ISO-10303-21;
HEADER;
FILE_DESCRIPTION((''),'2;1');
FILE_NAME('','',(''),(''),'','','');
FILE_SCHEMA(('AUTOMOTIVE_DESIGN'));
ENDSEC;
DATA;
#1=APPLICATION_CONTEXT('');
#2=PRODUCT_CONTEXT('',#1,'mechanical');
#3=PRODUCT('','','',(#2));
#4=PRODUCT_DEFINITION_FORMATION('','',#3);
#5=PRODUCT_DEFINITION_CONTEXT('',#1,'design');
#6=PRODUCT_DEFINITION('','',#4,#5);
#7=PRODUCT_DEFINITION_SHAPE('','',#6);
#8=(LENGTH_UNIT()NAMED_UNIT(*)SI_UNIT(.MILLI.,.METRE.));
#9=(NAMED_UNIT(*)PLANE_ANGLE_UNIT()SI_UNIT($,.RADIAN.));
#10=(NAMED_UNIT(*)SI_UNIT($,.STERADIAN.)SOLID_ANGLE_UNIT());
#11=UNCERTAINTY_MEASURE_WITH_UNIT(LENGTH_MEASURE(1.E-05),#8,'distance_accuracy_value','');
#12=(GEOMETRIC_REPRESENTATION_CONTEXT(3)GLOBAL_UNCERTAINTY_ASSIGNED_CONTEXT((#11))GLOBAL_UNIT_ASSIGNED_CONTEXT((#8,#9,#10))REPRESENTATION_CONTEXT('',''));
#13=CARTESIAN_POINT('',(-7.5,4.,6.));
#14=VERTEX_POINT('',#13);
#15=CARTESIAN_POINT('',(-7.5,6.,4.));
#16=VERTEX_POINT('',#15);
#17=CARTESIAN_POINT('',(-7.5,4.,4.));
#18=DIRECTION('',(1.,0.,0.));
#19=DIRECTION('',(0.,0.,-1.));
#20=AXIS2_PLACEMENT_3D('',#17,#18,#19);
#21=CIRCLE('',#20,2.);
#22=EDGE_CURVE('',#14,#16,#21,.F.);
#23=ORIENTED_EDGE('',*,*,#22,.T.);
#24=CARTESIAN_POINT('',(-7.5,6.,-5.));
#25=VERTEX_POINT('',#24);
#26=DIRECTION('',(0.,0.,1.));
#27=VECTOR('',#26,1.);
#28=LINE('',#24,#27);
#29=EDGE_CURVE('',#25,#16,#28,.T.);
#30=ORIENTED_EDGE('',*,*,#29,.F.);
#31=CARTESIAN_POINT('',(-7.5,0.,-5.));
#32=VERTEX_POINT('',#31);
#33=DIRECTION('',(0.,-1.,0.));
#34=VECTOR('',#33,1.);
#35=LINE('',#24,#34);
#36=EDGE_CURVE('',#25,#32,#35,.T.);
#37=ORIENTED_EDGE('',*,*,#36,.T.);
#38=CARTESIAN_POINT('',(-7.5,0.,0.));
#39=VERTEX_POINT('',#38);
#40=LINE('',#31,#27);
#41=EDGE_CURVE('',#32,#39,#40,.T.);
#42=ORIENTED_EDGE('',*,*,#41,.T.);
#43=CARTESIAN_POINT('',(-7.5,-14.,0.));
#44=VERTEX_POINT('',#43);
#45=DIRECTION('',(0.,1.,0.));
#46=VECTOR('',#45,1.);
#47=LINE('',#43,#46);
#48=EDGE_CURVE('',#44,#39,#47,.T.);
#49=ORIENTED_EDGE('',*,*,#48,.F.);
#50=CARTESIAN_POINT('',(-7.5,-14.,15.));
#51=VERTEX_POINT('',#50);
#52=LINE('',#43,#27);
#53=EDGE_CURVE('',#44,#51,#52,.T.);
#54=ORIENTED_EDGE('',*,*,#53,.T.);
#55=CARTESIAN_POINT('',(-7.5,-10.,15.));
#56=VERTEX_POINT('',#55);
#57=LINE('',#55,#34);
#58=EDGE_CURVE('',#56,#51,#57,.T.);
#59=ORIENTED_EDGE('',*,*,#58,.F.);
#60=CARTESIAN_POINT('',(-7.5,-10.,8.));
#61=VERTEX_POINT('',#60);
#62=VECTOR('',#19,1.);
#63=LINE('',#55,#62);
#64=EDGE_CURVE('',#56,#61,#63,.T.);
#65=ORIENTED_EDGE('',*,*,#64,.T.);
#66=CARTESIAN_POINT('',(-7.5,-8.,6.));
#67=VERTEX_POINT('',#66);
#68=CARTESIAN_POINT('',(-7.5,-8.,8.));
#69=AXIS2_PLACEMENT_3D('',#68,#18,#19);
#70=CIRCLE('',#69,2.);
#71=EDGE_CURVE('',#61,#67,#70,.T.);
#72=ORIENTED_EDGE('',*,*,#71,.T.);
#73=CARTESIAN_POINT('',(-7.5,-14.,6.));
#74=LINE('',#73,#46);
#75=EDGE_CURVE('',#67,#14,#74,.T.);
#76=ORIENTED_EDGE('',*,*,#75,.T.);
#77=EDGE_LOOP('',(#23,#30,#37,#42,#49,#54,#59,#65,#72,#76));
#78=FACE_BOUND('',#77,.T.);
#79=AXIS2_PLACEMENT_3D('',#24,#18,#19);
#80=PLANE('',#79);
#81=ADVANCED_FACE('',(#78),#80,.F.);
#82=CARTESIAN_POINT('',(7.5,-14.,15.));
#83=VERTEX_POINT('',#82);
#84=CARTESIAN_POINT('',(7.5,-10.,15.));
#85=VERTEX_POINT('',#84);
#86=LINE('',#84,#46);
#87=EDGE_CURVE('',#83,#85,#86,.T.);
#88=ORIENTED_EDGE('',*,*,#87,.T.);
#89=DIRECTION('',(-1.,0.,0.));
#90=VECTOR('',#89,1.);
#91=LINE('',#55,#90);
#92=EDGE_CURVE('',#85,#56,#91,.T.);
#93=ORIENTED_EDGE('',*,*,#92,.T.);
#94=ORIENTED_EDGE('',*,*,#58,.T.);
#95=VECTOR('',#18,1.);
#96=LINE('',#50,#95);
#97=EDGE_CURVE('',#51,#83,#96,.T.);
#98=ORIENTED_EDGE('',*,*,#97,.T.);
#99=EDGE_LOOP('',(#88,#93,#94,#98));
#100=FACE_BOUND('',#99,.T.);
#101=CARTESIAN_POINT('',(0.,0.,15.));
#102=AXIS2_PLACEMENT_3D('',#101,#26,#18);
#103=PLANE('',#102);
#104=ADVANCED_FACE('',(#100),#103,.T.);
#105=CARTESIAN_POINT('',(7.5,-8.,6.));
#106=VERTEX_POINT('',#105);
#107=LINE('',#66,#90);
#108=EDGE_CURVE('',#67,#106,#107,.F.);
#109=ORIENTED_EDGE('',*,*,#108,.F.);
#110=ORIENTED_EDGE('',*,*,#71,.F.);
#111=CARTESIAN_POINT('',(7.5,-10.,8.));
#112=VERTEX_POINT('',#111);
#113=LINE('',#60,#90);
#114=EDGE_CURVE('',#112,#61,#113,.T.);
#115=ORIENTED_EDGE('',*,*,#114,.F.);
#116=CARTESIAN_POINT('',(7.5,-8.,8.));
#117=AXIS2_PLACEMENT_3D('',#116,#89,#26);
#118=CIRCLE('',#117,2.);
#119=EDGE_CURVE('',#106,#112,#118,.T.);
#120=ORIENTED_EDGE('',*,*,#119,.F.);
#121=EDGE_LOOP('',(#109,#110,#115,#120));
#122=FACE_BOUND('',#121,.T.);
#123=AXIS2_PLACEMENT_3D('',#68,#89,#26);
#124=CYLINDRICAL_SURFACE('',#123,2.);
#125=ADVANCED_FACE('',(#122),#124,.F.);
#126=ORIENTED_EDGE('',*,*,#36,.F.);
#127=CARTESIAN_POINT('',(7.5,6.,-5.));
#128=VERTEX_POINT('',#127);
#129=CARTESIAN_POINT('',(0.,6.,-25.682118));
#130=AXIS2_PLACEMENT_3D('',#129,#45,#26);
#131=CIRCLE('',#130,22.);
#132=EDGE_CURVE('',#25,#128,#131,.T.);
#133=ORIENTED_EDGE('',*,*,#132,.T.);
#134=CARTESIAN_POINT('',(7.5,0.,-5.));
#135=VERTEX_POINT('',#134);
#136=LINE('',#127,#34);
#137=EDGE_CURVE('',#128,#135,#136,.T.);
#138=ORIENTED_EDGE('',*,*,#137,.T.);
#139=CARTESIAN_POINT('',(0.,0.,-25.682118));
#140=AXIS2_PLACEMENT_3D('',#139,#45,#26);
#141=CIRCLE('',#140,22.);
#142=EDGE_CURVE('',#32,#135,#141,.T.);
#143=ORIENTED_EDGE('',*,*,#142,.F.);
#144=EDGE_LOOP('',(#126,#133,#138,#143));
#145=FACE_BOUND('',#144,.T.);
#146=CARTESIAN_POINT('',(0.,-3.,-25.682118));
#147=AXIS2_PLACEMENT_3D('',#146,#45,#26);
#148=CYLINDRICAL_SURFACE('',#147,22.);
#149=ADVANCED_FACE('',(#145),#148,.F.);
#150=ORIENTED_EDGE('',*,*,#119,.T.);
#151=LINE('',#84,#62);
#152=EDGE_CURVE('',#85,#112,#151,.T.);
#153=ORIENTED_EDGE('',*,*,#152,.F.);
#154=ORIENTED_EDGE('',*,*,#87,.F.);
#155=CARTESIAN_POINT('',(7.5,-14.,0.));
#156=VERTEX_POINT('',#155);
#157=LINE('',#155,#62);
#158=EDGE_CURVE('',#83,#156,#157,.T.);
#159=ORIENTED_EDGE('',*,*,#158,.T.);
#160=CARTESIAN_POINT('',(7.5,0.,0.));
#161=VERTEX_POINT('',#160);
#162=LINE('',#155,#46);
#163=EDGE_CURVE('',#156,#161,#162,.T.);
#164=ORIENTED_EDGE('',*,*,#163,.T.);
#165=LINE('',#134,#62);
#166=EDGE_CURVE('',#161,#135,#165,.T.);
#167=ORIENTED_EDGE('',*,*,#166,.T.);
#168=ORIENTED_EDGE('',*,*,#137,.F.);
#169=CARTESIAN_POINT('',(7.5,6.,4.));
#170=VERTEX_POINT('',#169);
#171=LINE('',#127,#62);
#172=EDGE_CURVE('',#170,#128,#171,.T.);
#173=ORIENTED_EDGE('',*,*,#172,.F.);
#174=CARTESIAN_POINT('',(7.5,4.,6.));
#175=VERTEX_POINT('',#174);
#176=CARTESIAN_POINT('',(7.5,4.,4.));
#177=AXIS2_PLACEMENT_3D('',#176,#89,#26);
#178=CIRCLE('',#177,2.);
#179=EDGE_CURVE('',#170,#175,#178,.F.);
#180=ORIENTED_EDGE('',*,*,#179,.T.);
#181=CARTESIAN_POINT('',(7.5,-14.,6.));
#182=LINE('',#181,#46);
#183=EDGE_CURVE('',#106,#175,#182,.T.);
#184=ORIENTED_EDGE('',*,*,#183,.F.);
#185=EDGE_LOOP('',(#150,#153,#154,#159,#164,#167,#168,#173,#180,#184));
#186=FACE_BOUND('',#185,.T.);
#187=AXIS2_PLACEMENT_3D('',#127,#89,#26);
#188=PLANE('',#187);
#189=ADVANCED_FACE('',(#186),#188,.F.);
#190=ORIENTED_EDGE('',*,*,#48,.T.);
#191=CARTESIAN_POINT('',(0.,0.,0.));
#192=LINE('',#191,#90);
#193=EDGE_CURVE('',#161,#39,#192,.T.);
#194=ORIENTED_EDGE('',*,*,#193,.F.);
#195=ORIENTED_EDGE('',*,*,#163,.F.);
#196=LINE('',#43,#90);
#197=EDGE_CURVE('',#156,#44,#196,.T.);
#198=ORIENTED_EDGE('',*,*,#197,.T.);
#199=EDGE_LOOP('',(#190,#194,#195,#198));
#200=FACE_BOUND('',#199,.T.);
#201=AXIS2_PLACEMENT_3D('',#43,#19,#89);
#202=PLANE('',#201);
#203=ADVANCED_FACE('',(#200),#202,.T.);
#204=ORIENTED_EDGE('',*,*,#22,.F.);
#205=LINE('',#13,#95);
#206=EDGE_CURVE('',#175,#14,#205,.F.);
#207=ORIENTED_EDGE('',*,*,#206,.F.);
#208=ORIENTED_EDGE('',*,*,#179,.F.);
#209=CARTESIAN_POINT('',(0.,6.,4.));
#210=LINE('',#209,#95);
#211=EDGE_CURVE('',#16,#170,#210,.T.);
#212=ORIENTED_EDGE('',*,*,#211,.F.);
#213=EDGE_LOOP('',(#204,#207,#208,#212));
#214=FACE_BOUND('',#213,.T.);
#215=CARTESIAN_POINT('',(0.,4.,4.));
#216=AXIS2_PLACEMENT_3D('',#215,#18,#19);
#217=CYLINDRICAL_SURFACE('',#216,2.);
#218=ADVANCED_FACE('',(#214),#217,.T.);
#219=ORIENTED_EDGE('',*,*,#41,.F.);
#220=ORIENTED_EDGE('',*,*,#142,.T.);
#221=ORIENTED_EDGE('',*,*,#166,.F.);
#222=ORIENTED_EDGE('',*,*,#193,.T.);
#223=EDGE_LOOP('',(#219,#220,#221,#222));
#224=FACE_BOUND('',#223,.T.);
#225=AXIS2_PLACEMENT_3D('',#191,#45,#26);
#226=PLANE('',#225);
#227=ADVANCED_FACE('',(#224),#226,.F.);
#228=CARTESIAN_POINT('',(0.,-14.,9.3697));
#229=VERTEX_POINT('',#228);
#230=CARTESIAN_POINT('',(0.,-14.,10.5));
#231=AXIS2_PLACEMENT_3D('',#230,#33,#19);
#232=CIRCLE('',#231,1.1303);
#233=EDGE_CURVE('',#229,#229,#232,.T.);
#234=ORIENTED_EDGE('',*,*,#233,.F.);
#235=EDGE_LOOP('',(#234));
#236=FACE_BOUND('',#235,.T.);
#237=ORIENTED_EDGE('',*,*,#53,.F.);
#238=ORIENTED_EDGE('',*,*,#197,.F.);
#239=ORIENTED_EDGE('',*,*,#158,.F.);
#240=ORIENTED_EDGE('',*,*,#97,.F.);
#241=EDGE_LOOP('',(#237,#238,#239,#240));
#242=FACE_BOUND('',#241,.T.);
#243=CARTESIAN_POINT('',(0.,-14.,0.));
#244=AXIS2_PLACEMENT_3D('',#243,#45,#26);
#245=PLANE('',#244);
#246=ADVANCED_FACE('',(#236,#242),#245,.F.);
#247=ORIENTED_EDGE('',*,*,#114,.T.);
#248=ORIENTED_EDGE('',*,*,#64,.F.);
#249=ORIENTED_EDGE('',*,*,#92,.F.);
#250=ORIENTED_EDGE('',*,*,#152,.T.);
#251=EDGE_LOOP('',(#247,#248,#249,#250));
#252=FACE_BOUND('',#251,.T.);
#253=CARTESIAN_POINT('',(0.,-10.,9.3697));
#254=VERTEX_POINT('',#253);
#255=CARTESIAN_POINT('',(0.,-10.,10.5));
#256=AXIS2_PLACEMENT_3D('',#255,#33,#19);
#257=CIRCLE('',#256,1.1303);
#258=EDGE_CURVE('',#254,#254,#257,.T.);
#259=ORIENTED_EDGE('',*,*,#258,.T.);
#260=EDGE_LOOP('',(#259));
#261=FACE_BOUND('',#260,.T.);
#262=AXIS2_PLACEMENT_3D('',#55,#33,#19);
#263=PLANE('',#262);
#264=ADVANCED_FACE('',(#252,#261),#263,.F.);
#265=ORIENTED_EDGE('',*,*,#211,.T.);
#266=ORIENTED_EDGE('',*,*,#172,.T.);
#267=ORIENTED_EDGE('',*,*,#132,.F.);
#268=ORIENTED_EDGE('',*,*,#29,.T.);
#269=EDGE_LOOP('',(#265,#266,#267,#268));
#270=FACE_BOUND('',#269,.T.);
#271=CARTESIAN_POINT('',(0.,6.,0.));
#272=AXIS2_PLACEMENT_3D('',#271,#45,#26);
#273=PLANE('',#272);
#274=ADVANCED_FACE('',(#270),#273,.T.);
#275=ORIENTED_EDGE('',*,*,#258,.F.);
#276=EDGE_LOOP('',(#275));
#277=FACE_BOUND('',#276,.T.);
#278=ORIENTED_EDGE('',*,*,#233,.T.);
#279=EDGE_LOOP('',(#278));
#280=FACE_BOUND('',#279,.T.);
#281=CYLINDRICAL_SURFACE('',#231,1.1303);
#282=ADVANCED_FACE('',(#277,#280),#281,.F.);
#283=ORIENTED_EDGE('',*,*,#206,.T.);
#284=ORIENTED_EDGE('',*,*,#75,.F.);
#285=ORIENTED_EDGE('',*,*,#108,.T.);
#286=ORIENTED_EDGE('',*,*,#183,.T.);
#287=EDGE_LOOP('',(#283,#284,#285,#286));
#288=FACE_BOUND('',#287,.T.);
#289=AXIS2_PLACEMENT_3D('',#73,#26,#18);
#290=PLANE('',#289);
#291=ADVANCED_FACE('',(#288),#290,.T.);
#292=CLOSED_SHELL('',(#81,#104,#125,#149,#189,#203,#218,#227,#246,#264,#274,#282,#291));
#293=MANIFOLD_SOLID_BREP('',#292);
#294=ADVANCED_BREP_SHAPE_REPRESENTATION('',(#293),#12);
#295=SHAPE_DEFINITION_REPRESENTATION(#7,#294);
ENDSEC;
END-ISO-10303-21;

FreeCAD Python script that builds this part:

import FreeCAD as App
import Part
import Sketcher

V = App.Vector
Q = App.Units.Quantity


def edges_at(feature, points):
    """Names of the edges that pass closest to the given points."""
    edges = feature.Shape.Edges
    near = lambda p: min(range(len(edges)), key=lambda i: edges[i].distToShape(Part.Vertex(*p))[0])
    return sorted({f"Edge{near(p) + 1}" for p in points})


def add_polygon(sketch, points):
    """Adds a closed chain of lines whose ends are joined by coincident constraints."""
    first, n = sketch.GeometryCount, len(points)
    for a, b in zip(points, points[1:] + points[:1]):
        sketch.addGeometry(Part.LineSegment(App.Vector(*a, 0), App.Vector(*b, 0)), False)
    for i in range(n):
        sketch.addConstraint(Sketcher.Constraint("Coincident", first + i, 2, first + (i + 1) % n, 1))

doc = App.newDocument("Part")
body = doc.addObject("PartDesign::Body", "Body")

# Sketch on XZ plane
sketch1 = body.newObject("Sketcher::SketchObject", "Sketch")
sketch1.AttachmentSupport = (doc.getObject("XZ_Plane"), [""])
sketch1.MapMode = "FlatFace"
add_polygon(sketch1, [(-7.5, -5), (-7.5, 5), (7.5, 5), (7.5, -5)])  # lines 0-3
sketch1.addConstraint([
    Sketcher.Constraint("Vertical", 0),
    Sketcher.Constraint("Horizontal", 1),
    Sketcher.Constraint("Vertical", 2),
    Sketcher.Constraint("Horizontal", 3),
    Sketcher.Constraint("Symmetric", 0, 2, 2, 2, -1, 1),
    Sketcher.Constraint("DistanceX", 1, 1, 1, 2, Q("15 mm")),
    Sketcher.Constraint("DistanceY", 0, 1, 0, 2, Q("10 mm")),
])
pad1 = body.newObject("PartDesign::Pad", "Pad")
pad1.Profile = sketch1
pad1.Length = 6
pad1.Reversed = True

# Sketch on XZ plane
sketch2 = body.newObject("Sketcher::SketchObject", "Sketch001")
sketch2.AttachmentSupport = (doc.getObject("XZ_Plane"), [""])
sketch2.MapMode = "FlatFace"
sketch2.AttachmentOffset = App.Placement(V(0, 0, -6), App.Rotation())
sketch2.addGeometry(Part.Circle(V(0, -25.682118, 0), V(0, 0, 1), 22), False)
sketch2.addConstraint([
    Sketcher.Constraint("PointOnObject", 0, 3, -2),
    Sketcher.Constraint("Diameter", 0, Q("44 mm")),
    Sketcher.Constraint("DistanceY", 0, 3, -1, 1, Q("25.682118 mm")),
])
pocket1 = body.newObject("PartDesign::Pocket", "Pocket")
pocket1.Profile = sketch2
pocket1.Length = 9
pocket1.Reversed = True

# Sketch on XZ plane
sketch3 = body.newObject("Sketcher::SketchObject", "Sketch002")
sketch3.AttachmentSupport = (doc.getObject("XZ_Plane"), [""])
sketch3.MapMode = "FlatFace"
sketch3.AttachmentOffset = App.Placement(V(0, 0, -6), App.Rotation())
add_polygon(sketch3, [(-7.5, 0), (-7.5, 6), (7.5, 6), (7.5, 0)])  # lines 0-3
sketch3.addConstraint([
    Sketcher.Constraint("Vertical", 0),
    Sketcher.Constraint("Horizontal", 1),
    Sketcher.Constraint("Vertical", 2),
    Sketcher.Constraint("Horizontal", 3),
    Sketcher.Constraint("Symmetric", 2, 2, 3, 2, -1, 1),
    Sketcher.Constraint("DistanceX", 1, 1, 1, 2, Q("15 mm")),
    Sketcher.Constraint("DistanceY", 0, 1, 0, 2, Q("6 mm")),
])
pad2 = body.newObject("PartDesign::Pad", "Pad001")
pad2.Profile = sketch3
pad2.Length = 20

# Sketch on XY plane
sketch4 = body.newObject("Sketcher::SketchObject", "Sketch003")
sketch4.AttachmentSupport = (doc.getObject("XY_Plane"), [""])
sketch4.MapMode = "FlatFace"
sketch4.AttachmentOffset = App.Placement(V(0, 0, 6), App.Rotation())
add_polygon(sketch4, [(-7.5, -10), (-7.5, -14), (7.5, -14), (7.5, -10)])  # lines 0-3
sketch4.addConstraint([
    Sketcher.Constraint("Vertical", 0),
    Sketcher.Constraint("Horizontal", 1),
    Sketcher.Constraint("Vertical", 2),
    Sketcher.Constraint("Horizontal", 3),
    Sketcher.Constraint("DistanceX", 1, 1, 1, 2, Q("15 mm")),
    Sketcher.Constraint("DistanceY", 0, 2, 0, 1, Q("4 mm")),
    Sketcher.Constraint("DistanceY", 0, 2, -1, 1, Q("14 mm")),
    Sketcher.Constraint("DistanceX", 0, 2, -1, 1, Q("7.5 mm")),
])
pad3 = body.newObject("PartDesign::Pad", "Pad002")
pad3.Profile = sketch4
pad3.Length = 9

# Sketch on XZ plane
sketch5 = body.newObject("Sketcher::SketchObject", "Sketch004")
sketch5.AttachmentSupport = (doc.getObject("XZ_Plane"), [""])
sketch5.MapMode = "FlatFace"
sketch5.AttachmentOffset = App.Placement(V(0, 0, 14), App.Rotation())
sketch5.addGeometry(Part.Circle(V(0, 10.5, 0), V(0, 0, 1), 1.1303), False)
sketch5.addConstraint([
    Sketcher.Constraint("PointOnObject", 0, 3, -2),
    Sketcher.Constraint("Diameter", 0, Q("2.2606 mm")),
    Sketcher.Constraint("DistanceY", -1, 1, 0, 3, Q("10.5 mm")),
])
doc.recompute()
hole = body.newObject("PartDesign::Hole", "Hole")
hole.Profile = sketch5
hole.ThreadType = "None"
hole.Diameter = 2.2606
hole.DepthType = "Dimension"
hole.Depth = 7.6
hole.DrillPoint = "Angled"
hole.DrillPointAngle = 118
doc.recompute()

fillet = body.newObject("PartDesign::Fillet", "Fillet")
fillet.Base = (hole, edges_at(hole, [(0, 6, 6), (0, -10, 6)]))
fillet.Radius = 2

doc.recompute()
